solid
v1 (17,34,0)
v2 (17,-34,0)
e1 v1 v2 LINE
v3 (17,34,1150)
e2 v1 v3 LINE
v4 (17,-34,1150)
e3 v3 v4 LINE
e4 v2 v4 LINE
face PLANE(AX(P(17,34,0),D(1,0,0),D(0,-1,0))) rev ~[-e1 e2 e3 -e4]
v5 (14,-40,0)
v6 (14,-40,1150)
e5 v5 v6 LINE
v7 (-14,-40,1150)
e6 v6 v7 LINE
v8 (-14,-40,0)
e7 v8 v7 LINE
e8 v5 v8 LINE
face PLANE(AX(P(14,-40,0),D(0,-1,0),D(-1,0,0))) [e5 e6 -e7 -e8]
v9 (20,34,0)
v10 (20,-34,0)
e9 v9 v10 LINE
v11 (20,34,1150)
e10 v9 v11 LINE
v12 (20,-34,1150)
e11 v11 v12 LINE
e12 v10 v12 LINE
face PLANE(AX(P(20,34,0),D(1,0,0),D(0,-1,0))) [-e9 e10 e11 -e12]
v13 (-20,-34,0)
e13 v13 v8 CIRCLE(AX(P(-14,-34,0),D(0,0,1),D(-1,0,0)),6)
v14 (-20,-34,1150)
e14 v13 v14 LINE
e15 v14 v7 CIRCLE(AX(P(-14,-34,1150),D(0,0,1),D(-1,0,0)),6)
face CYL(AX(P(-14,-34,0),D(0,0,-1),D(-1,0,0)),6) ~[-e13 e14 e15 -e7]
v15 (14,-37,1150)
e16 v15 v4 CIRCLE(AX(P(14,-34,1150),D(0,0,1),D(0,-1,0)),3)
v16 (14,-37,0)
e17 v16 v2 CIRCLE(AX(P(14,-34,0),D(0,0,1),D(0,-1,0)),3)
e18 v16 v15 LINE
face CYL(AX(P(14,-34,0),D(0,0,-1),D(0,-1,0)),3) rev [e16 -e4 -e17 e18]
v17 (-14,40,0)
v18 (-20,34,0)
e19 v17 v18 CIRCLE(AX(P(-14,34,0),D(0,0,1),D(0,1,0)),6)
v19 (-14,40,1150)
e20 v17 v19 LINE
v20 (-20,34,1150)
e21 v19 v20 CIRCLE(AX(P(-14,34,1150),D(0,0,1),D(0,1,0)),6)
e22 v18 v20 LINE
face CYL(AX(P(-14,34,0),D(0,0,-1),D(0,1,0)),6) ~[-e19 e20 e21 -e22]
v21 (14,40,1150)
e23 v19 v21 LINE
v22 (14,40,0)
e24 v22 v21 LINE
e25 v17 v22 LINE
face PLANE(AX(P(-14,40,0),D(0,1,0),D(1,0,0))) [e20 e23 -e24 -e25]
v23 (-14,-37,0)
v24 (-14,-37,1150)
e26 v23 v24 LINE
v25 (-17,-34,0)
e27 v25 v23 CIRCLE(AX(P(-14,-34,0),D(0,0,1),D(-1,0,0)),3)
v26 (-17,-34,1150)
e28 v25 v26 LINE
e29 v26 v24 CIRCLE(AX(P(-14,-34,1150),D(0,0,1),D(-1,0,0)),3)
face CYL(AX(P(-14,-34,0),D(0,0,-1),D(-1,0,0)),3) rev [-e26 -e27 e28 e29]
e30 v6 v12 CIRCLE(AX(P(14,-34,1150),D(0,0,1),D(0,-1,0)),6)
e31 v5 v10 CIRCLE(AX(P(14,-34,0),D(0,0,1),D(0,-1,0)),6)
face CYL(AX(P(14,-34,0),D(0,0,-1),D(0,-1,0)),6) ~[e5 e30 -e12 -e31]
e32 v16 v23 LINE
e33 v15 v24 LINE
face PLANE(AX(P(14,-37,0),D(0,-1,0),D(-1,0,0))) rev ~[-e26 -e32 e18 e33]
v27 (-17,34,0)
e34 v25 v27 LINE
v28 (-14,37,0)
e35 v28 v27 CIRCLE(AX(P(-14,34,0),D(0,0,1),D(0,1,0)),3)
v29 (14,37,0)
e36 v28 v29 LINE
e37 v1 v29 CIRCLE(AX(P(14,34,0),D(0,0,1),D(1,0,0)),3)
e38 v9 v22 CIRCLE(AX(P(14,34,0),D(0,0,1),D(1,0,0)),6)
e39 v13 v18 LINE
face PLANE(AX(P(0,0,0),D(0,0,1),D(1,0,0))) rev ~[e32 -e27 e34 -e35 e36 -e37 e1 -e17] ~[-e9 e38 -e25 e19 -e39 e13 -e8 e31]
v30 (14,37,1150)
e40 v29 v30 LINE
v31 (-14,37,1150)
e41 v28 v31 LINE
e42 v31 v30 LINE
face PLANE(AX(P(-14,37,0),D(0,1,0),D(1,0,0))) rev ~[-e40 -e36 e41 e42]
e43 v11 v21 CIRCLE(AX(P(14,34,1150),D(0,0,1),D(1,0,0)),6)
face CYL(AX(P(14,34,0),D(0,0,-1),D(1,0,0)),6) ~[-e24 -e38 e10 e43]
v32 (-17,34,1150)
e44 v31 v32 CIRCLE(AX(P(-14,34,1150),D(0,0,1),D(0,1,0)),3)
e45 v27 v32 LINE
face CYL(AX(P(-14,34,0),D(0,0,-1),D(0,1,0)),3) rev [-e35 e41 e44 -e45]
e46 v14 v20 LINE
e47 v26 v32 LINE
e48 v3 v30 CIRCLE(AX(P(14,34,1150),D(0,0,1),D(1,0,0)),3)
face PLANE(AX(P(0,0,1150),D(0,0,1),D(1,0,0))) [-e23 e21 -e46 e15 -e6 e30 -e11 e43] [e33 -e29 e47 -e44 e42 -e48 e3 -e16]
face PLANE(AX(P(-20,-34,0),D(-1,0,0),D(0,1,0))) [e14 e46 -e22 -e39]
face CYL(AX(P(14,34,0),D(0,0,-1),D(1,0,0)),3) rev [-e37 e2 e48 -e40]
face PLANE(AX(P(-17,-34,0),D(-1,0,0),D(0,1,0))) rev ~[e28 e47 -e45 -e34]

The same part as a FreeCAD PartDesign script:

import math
import FreeCAD as App
import Part
import Sketcher

doc = App.newDocument("Part")
params = doc.addObject("Spreadsheet::Sheet", "Params")
for row, (alias, value) in enumerate([
    ("sketch1_radius", "6 mm"),
    ("sketch1_radius2", "3 mm"),
    ("pad1_length", "1150 mm"),
], start=1):
    params.set(f"A{row}", alias)
    params.set(f"B{row}", "=" + value)
    params.setAlias(f"B{row}", alias)

body = doc.addObject("PartDesign::Body", "Body")

# Sketch on XY plane
sketch1 = body.newObject("Sketcher::SketchObject", "Sketch")
sketch1.AttachmentSupport = (doc.getObject("XY_Plane"), [""])
sketch1.MapMode = "FlatFace"
sketch1.addGeometry(Part.LineSegment(App.Vector(-20, 34, 0), App.Vector(-20, -34, 0)), False)
sketch1.addGeometry(Part.ArcOfCircle(Part.Circle(App.Vector(-14, -34, 0), App.Vector(0, 0, 1), 6), math.radians(180), math.radians(270)), False)
sketch1.addGeometry(Part.LineSegment(App.Vector(-14, -40, 0), App.Vector(14, -40, 0)), False)
sketch1.addGeometry(Part.ArcOfCircle(Part.Circle(App.Vector(14, -34, 0), App.Vector(0, 0, 1), 6), math.radians(-90), math.radians(0)), False)
sketch1.addGeometry(Part.LineSegment(App.Vector(20, -34, 0), App.Vector(20, 34, 0)), False)
sketch1.addGeometry(Part.ArcOfCircle(Part.Circle(App.Vector(14, 34, 0), App.Vector(0, 0, 1), 6), math.radians(0), math.radians(90)), False)
sketch1.addGeometry(Part.LineSegment(App.Vector(14, 40, 0), App.Vector(-14, 40, 0)), False)
sketch1.addGeometry(Part.ArcOfCircle(Part.Circle(App.Vector(-14, 34, 0), App.Vector(0, 0, 1), 6), math.radians(90), math.radians(180)), False)
sketch1.addGeometry(Part.ArcOfCircle(Part.Circle(App.Vector(-14, 34, 0), App.Vector(0, 0, 1), 3), math.radians(90), math.radians(180)), False)
sketch1.addGeometry(Part.LineSegment(App.Vector(-14, 37, 0), App.Vector(14, 37, 0)), False)
sketch1.addGeometry(Part.ArcOfCircle(Part.Circle(App.Vector(14, 34, 0), App.Vector(0, 0, 1), 3), math.radians(0), math.radians(90)), False)
sketch1.addGeometry(Part.LineSegment(App.Vector(17, 34, 0), App.Vector(17, -34, 0)), False)
sketch1.addGeometry(Part.ArcOfCircle(Part.Circle(App.Vector(14, -34, 0), App.Vector(0, 0, 1), 3), math.radians(-90), math.radians(0)), False)
sketch1.addGeometry(Part.LineSegment(App.Vector(14, -37, 0), App.Vector(-14, -37, 0)), False)
sketch1.addGeometry(Part.ArcOfCircle(Part.Circle(App.Vector(-14, -34, 0), App.Vector(0, 0, 1), 3), math.radians(180), math.radians(270)), False)
sketch1.addGeometry(Part.LineSegment(App.Vector(-17, -34, 0), App.Vector(-17, 34, 0)), False)
sketch1.addConstraint(Sketcher.Constraint("Tangent", 0, 2, 1, 1))
sketch1.addConstraint(Sketcher.Constraint("Tangent", 1, 2, 2, 1))
sketch1.addConstraint(Sketcher.Constraint("Tangent", 2, 2, 3, 1))
sketch1.addConstraint(Sketcher.Constraint("Tangent", 3, 2, 4, 1))
sketch1.addConstraint(Sketcher.Constraint("Tangent", 4, 2, 5, 1))
sketch1.addConstraint(Sketcher.Constraint("Tangent", 5, 2, 6, 1))
sketch1.addConstraint(Sketcher.Constraint("Tangent", 6, 2, 7, 1))
sketch1.addConstraint(Sketcher.Constraint("Tangent", 7, 2, 0, 1))
sketch1.addConstraint(Sketcher.Constraint("Tangent", 8, 1, 9, 1))
sketch1.addConstraint(Sketcher.Constraint("Tangent", 9, 2, 10, 2))
sketch1.addConstraint(Sketcher.Constraint("Tangent", 10, 1, 11, 1))
sketch1.addConstraint(Sketcher.Constraint("Tangent", 11, 2, 12, 2))
sketch1.addConstraint(Sketcher.Constraint("Tangent", 12, 1, 13, 1))
sketch1.addConstraint(Sketcher.Constraint("Tangent", 13, 2, 14, 2))
sketch1.addConstraint(Sketcher.Constraint("Tangent", 14, 1, 15, 1))
sketch1.addConstraint(Sketcher.Constraint("Tangent", 15, 2, 8, 2))
sketch1.addConstraint(Sketcher.Constraint("Vertical", 0))
sketch1.addConstraint(Sketcher.Constraint("Horizontal", 2))
sketch1.addConstraint(Sketcher.Constraint("Vertical", 4))
sketch1.addConstraint(Sketcher.Constraint("Horizontal", 6))
sketch1.addConstraint(Sketcher.Constraint("Horizontal", 9))
sketch1.addConstraint(Sketcher.Constraint("Vertical", 11))
sketch1.addConstraint(Sketcher.Constraint("Horizontal", 13))
sketch1.addConstraint(Sketcher.Constraint("Vertical", 15))
sketch1.addConstraint(Sketcher.Constraint("Coincident", 8, 3, 7, 3))
sketch1.addConstraint(Sketcher.Constraint("Coincident", 10, 3, 5, 3))
sketch1.addConstraint(Sketcher.Constraint("Coincident", 12, 3, 3, 3))
sketch1.addConstraint(Sketcher.Constraint("Equal", 1, 3))
sketch1.addConstraint(Sketcher.Constraint("Equal", 3, 5))
sketch1.addConstraint(Sketcher.Constraint("Equal", 5, 7))
sketch1.addConstraint(Sketcher.Constraint("Equal", 12, 14))
sketch1.addConstraint(Sketcher.Constraint("Symmetric", 1, 3, 5, 3, -1, 1))
sketch1.addConstraint(Sketcher.Constraint("Radius", 1, 6.0))
sketch1.addConstraint(Sketcher.Constraint("Radius", 8, 3.0))
sketch1.addConstraint(Sketcher.Constraint("DistanceX", 0, 2, -1, 1, 20.0))
sketch1.addConstraint(Sketcher.Constraint("DistanceY", 1, 2, -1, 1, 40.0))
sketch1.setExpression("Constraints[32]", "Params.sketch1_radius")
sketch1.setExpression("Constraints[33]", "Params.sketch1_radius2")
pad1 = body.newObject("PartDesign::Pad", "Pad")
pad1.Profile = sketch1
pad1.setExpression("Length", "Params.pad1_length")

doc.recompute()
